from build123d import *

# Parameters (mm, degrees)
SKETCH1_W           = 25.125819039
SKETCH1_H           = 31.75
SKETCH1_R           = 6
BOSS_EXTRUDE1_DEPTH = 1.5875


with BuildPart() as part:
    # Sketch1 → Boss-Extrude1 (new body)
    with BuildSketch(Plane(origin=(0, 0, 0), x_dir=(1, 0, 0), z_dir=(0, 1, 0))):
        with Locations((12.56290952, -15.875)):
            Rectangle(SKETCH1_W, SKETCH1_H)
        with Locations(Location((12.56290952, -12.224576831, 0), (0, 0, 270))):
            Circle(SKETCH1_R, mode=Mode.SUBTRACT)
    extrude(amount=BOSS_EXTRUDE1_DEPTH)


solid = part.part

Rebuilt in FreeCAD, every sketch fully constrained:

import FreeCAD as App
import Part
import Sketcher
from FreeCAD import Vector
Q = App.Units.Quantity


def add_polygon(sketch, points):
    """Adds a closed chain of lines whose ends are joined by coincident constraints."""
    first, n = sketch.GeometryCount, len(points)
    for a, b in zip(points, points[1:] + points[:1]):
        sketch.addGeometry(Part.LineSegment(App.Vector(*a, 0), App.Vector(*b, 0)), False)
    for i in range(n):
        sketch.addConstraint(Sketcher.Constraint("Coincident", first + i, 2, first + (i + 1) % n, 1))

doc = App.newDocument("Part")
params = doc.addObject("Spreadsheet::Sheet", "Params")
for row, (alias, value) in enumerate([
    ("sketch1_height", "1.25 in"),
    ("pad1_length", "0.0625 in"),
], start=1):
    params.set(f"A{row}", alias)
    params.set(f"B{row}", "=" + value)
    params.setAlias(f"B{row}", alias)

body = doc.addObject("PartDesign::Body", "Body")

# Sketch on XZ plane
sketch1 = body.newObject("Sketcher::SketchObject", "Sketch")
sketch1.AttachmentSupport = (doc.getObject("XZ_Plane"), [""])
sketch1.MapMode = "FlatFace"
add_polygon(sketch1, [(0, 0), (0, 32), (25, 32), (25, 0)])  # lines 0-3
sketch1.addGeometry(Part.Circle(Vector(13, 12, 0), Vector(0, 0, 1), 6), False)  # 4
sketch1.addConstraint([
    Sketcher.Constraint("Vertical", 0),
    Sketcher.Constraint("Horizontal", 1),
    Sketcher.Constraint("Vertical", 2),
    Sketcher.Constraint("Horizontal", 3),
    Sketcher.Constraint("Coincident", 3, 2, -1, 1),
    Sketcher.Constraint("DistanceY", 0, 1, 0, 2, Q("1.25 in")),
    Sketcher.Constraint("Diameter", 4, Q("12 mm")),
    Sketcher.Constraint("DistanceX", 1, 1, 1, 2, Q("25.125819 mm")),
    Sketcher.Constraint("DistanceX", -1, 1, 4, 3, Q("12.56291 mm")),
    Sketcher.Constraint("DistanceY", -1, 1, 4, 3, Q("12.224577 mm")),
])
sketch1.setExpression("Constraints[9]", "Params.sketch1_height")
pad1 = body.newObject("PartDesign::Pad", "Pad")
pad1.Profile = sketch1
pad1.setExpression("Length", "Params.pad1_length")
pad1.Reversed = True

doc.recompute()
